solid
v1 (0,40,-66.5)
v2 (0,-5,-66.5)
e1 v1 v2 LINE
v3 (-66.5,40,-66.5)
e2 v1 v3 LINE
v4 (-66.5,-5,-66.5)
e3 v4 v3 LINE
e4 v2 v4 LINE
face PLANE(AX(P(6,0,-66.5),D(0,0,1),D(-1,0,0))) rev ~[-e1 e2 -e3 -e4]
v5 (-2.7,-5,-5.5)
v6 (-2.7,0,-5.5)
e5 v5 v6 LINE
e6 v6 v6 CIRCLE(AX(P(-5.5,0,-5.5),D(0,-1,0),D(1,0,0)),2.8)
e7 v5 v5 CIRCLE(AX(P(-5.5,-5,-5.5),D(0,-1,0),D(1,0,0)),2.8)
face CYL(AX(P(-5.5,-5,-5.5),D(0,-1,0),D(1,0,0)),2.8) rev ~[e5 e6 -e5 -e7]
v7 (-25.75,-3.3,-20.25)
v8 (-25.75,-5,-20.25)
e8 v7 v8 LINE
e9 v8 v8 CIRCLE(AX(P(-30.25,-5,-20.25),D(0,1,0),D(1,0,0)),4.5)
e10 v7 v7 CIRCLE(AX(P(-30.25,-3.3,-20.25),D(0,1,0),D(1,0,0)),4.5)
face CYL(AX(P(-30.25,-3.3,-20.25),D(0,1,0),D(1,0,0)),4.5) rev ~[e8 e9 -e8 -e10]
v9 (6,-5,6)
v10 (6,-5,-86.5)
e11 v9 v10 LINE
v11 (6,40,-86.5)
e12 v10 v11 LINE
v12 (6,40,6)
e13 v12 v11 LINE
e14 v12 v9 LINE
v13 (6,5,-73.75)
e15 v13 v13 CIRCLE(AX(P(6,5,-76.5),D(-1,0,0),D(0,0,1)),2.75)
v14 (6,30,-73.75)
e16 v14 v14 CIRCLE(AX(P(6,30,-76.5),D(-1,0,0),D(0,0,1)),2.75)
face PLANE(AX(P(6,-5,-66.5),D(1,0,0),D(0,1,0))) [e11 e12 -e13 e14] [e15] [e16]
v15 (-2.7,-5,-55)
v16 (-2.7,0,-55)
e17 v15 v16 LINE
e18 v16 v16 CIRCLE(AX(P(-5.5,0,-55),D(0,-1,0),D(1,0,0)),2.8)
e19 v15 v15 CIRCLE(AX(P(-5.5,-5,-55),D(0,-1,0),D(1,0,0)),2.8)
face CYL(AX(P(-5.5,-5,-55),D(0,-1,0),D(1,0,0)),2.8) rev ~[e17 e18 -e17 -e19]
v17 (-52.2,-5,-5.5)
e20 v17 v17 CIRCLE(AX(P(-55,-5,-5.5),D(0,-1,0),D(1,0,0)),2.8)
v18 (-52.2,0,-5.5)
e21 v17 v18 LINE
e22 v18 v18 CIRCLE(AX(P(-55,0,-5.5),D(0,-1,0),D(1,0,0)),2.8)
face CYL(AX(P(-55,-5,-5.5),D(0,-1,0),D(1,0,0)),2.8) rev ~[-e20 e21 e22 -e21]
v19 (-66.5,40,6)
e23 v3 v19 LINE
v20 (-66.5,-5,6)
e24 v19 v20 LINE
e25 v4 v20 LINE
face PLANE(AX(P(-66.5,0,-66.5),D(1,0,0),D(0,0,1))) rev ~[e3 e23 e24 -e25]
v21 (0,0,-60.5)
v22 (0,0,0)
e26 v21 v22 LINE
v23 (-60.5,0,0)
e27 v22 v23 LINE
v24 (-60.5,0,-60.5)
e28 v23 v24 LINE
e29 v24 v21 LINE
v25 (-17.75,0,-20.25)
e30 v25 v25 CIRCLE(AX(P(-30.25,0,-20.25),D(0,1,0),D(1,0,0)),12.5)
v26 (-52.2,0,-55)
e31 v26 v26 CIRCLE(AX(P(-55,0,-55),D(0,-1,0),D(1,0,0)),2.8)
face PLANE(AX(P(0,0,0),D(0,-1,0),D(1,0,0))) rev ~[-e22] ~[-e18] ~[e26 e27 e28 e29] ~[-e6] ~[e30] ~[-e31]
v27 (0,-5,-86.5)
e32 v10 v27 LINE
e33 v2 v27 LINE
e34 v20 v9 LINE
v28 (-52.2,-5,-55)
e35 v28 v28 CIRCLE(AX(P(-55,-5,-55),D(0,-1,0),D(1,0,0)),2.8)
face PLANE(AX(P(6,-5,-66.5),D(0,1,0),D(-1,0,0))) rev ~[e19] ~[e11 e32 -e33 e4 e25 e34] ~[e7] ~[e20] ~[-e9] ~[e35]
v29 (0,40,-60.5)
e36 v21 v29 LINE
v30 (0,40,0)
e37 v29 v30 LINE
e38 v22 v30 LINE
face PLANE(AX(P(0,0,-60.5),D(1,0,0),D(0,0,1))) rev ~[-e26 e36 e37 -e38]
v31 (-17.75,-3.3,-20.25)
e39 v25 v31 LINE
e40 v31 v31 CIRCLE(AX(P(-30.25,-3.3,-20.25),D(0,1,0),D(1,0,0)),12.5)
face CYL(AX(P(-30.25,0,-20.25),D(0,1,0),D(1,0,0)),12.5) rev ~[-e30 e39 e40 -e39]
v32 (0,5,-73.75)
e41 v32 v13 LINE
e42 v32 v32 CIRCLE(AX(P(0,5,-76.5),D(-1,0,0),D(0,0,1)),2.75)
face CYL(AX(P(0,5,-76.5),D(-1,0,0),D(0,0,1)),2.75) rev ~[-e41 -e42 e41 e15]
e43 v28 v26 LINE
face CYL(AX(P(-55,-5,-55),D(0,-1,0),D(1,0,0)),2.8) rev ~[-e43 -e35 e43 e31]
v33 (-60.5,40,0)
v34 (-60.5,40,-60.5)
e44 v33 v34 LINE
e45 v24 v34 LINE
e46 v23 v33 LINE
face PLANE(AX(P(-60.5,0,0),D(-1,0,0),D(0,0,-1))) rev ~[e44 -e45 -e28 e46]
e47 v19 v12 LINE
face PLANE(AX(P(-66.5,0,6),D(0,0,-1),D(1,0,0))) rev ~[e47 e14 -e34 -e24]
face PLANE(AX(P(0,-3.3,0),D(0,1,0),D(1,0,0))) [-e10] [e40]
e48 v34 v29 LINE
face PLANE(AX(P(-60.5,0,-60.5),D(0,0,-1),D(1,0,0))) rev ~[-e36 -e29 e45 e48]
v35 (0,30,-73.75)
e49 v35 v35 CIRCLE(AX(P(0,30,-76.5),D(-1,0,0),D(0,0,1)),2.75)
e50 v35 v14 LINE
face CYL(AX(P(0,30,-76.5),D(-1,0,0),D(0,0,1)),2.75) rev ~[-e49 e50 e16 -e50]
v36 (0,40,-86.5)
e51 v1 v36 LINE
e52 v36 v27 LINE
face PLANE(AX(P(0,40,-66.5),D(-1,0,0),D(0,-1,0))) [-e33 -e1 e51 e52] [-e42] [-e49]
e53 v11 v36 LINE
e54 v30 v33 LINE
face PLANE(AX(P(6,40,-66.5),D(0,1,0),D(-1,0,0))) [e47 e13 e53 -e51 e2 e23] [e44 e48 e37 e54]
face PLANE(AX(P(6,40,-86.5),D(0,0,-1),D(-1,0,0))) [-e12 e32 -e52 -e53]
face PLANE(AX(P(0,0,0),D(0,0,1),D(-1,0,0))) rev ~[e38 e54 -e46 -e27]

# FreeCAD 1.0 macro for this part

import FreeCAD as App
import Part
import Sketcher

V = App.Vector
Q = App.Units.Quantity

doc = App.newDocument("Part")
body = doc.addObject("PartDesign::Body", "Body")

# Sketch on XZ plane
sketch1 = doc.addObject("Sketcher::SketchObject", "Sketch")
body.addObject(sketch1)
sketch1.AttachmentSupport = (doc.XZ_Plane, [""])
sketch1.MapMode = "FlatFace"
sketch1.addGeometry(Part.LineSegment(V(6, 6, 0), V(6, -66, 0)), False)
sketch1.addGeometry(Part.LineSegment(V(6, -66, 0), V(-66, -66, 0)), False)
sketch1.addGeometry(Part.LineSegment(V(-66, -66, 0), V(-66, 6, 0)), False)
sketch1.addGeometry(Part.LineSegment(V(-66, 6, 0), V(6, 6, 0)), False)
sketch1.addGeometry(Part.LineSegment(V(0, -60, 0), V(0, 0, 0)), False)
sketch1.addGeometry(Part.LineSegment(V(0, 0, 0), V(-60, 0, 0)), False)
sketch1.addGeometry(Part.LineSegment(V(-60, 0, 0), V(-60, -60, 0)), False)
sketch1.addGeometry(Part.LineSegment(V(-60, -60, 0), V(0, -60, 0)), False)
sketch1.addConstraint(Sketcher.Constraint("Coincident", 0, 2, 1, 1))
sketch1.addConstraint(Sketcher.Constraint("Coincident", 1, 2, 2, 1))
sketch1.addConstraint(Sketcher.Constraint("Coincident", 2, 2, 3, 1))
sketch1.addConstraint(Sketcher.Constraint("Coincident", 3, 2, 0, 1))
sketch1.addConstraint(Sketcher.Constraint("Coincident", 4, 2, 5, 1))
sketch1.addConstraint(Sketcher.Constraint("Coincident", 5, 2, 6, 1))
sketch1.addConstraint(Sketcher.Constraint("Coincident", 6, 2, 7, 1))
sketch1.addConstraint(Sketcher.Constraint("Coincident", 7, 2, 4, 1))
sketch1.addConstraint(Sketcher.Constraint("Vertical", 0))
sketch1.addConstraint(Sketcher.Constraint("Horizontal", 1))
sketch1.addConstraint(Sketcher.Constraint("Vertical", 2))
sketch1.addConstraint(Sketcher.Constraint("Horizontal", 3))
sketch1.addConstraint(Sketcher.Constraint("Vertical", 4))
sketch1.addConstraint(Sketcher.Constraint("Horizontal", 5))
sketch1.addConstraint(Sketcher.Constraint("Vertical", 6))
sketch1.addConstraint(Sketcher.Constraint("Horizontal", 7))
sketch1.addConstraint(Sketcher.Constraint("Coincident", 4, 2, -1, 1))
sketch1.addConstraint(Sketcher.Constraint("Equal", 3, 0))
sketch1.addConstraint(Sketcher.Constraint("Equal", 7, 4))
sketch1.addConstraint(Sketcher.Constraint("DistanceX", 5, 2, 5, 1, Q("60.5 mm")))
sketch1.addConstraint(Sketcher.Constraint("DistanceX", -1, 1, 0, 2, Q("6 mm")))
sketch1.addConstraint(Sketcher.Constraint("DistanceY", -1, 1, 2, 2, Q("6 mm")))
sketch1.addConstraint(Sketcher.Constraint("DistanceX", 2, 2, 5, 2, Q("6 mm")))
pad1 = doc.addObject("PartDesign::Pad", "Pad")
body.addObject(pad1)
pad1.Profile = sketch1
pad1.Length = 40
pad1.Reversed = True

# Sketch on XZ plane
sketch2 = doc.addObject("Sketcher::SketchObject", "Sketch001")
body.addObject(sketch2)
sketch2.AttachmentSupport = (doc.XZ_Plane, [""])
sketch2.MapMode = "FlatFace"
sketch2.addGeometry(Part.LineSegment(V(-66, 6, 0), V(-66, -66, 0)), False)
sketch2.addGeometry(Part.LineSegment(V(-66, -66, 0), V(6, -66, 0)), False)
sketch2.addGeometry(Part.LineSegment(V(6, -66, 0), V(6, 6, 0)), False)
sketch2.addGeometry(Part.LineSegment(V(6, 6, 0), V(-66, 6, 0)), False)
sketch2.addConstraint(Sketcher.Constraint("Coincident", 0, 2, 1, 1))
sketch2.addConstraint(Sketcher.Constraint("Coincident", 1, 2, 2, 1))
sketch2.addConstraint(Sketcher.Constraint("Coincident", 2, 2, 3, 1))
sketch2.addConstraint(Sketcher.Constraint("Coincident", 3, 2, 0, 1))
sketch2.addConstraint(Sketcher.Constraint("Vertical", 0))
sketch2.addConstraint(Sketcher.Constraint("Horizontal", 1))
sketch2.addConstraint(Sketcher.Constraint("Vertical", 2))
sketch2.addConstraint(Sketcher.Constraint("Horizontal", 3))
sketch2.addConstraint(Sketcher.Constraint("Equal", 3, 0))
sketch2.addConstraint(Sketcher.Constraint("DistanceX", 1, 1, 1, 2, Q("72.5 mm")))
sketch2.addConstraint(Sketcher.Constraint("DistanceX", -1, 1, 1, 2, Q("6 mm")))
sketch2.addConstraint(Sketcher.Constraint("DistanceY", -1, 1, 2, 2, Q("6 mm")))
pad2 = doc.addObject("PartDesign::Pad", "Pad001")
body.addObject(pad2)
pad2.Profile = sketch2
pad2.Length = 5

# Sketch on XZ plane
sketch3 = doc.addObject("Sketcher::SketchObject", "Sketch002")
body.addObject(sketch3)
sketch3.AttachmentSupport = (doc.XZ_Plane, [""])
sketch3.MapMode = "FlatFace"
sketch3.AttachmentOffset = App.Placement(V(0, 0, 5), App.Rotation())
sketch3.addGeometry(Part.Circle(V(-55, -5.5, 0), V(0, 0, 1), 2.8), False)
sketch3.addGeometry(Part.Circle(V(-5.5, -5.5, 0), V(0, 0, 1), 2.8), False)
sketch3.addGeometry(Part.Circle(V(-55, -55, 0), V(0, 0, 1), 2.8), False)
sketch3.addGeometry(Part.Circle(V(-5.5, -55, 0), V(0, 0, 1), 2.8), False)
sketch3.addConstraint(Sketcher.Constraint("Equal", 0, 1))
sketch3.addConstraint(Sketcher.Constraint("Equal", 1, 2))
sketch3.addConstraint(Sketcher.Constraint("Equal", 2, 3))
sketch3.addConstraint(Sketcher.Constraint("Horizontal", 0, 3, 1, 3))
sketch3.addConstraint(Sketcher.Constraint("Horizontal", 2, 3, 3, 3))
sketch3.addConstraint(Sketcher.Constraint("Vertical", 0, 3, 2, 3))
sketch3.addConstraint(Sketcher.Constraint("Vertical", 1, 3, 3, 3))
sketch3.addConstraint(Sketcher.Constraint("Diameter", 0, Q("5.6 mm")))
sketch3.addConstraint(Sketcher.Constraint("DistanceX", 0, 3, 1, 3, Q("49.5 mm")))
sketch3.addConstraint(Sketcher.Constraint("DistanceY", 2, 3, 0, 3, Q("49.5 mm")))
sketch3.addConstraint(Sketcher.Constraint("DistanceX", 0, 3, -1, 1, Q("55 mm")))
sketch3.addConstraint(Sketcher.Constraint("DistanceY", 2, 3, -1, 1, Q("55 mm")))
pocket1 = doc.addObject("PartDesign::Pocket", "Pocket")
body.addObject(pocket1)
pocket1.Profile = sketch3
pocket1.Length = 5

# Sketch on XZ plane
sketch4 = doc.addObject("Sketcher::SketchObject", "Sketch003")
body.addObject(sketch4)
sketch4.AttachmentSupport = (doc.XZ_Plane, [""])
sketch4.MapMode = "FlatFace"
sketch4.addGeometry(Part.Circle(V(-30, -20, 0), V(0, 0, 1), 12), False)
sketch4.addConstraint(Sketcher.Constraint("Diameter", 0, Q("25 mm")))
sketch4.addConstraint(Sketcher.Constraint("DistanceX", 0, 3, -1, 1, Q("30.25 mm")))
sketch4.addConstraint(Sketcher.Constraint("DistanceY", 0, 3, -1, 1, Q("20.25 mm")))
pocket2 = doc.addObject("PartDesign::Pocket", "Pocket001")
body.addObject(pocket2)
pocket2.Profile = sketch4
pocket2.Length = 3.3
pocket2.Reversed = True

# Sketch on XZ plane
sketch5 = doc.addObject("Sketcher::SketchObject", "Sketch004")
body.addObject(sketch5)
sketch5.AttachmentSupport = (doc.XZ_Plane, [""])
sketch5.MapMode = "FlatFace"
sketch5.AttachmentOffset = App.Placement(V(0, 0, 3.3), App.Rotation())
sketch5.addGeometry(Part.Circle(V(-30.2, -20.2, 0), V(0, 0, 1), 4.5), False)
sketch5.addConstraint(Sketcher.Constraint("Diameter", 0, Q("9 mm")))
sketch5.addConstraint(Sketcher.Constraint("DistanceX", 0, 3, -1, 1, Q("30.25 mm")))
sketch5.addConstraint(Sketcher.Constraint("DistanceY", 0, 3, -1, 1, Q("20.25 mm")))
pocket3 = doc.addObject("PartDesign::Pocket", "Pocket002")
body.addObject(pocket3)
pocket3.Profile = sketch5
pocket3.Length = 2
pocket3.Reversed = True

# Sketch on XY plane
sketch6 = doc.addObject("Sketcher::SketchObject", "Sketch005")
body.addObject(sketch6)
sketch6.AttachmentSupport = (doc.XY_Plane, [""])
sketch6.MapMode = "FlatFace"
sketch6.AttachmentOffset = App.Placement(V(0, 0, -66.5), App.Rotation())
sketch6.addGeometry(Part.LineSegment(V(0, 40, 0), V(6, 40, 0)), False)
sketch6.addGeometry(Part.LineSegment(V(6, 40, 0), V(6, -5, 0)), False)
sketch6.addGeometry(Part.LineSegment(V(6, -5, 0), V(0, -5, 0)), False)
sketch6.addGeometry(Part.LineSegment(V(0, -5, 0), V(0, 40, 0)), False)
sketch6.addConstraint(Sketcher.Constraint("Coincident", 0, 2, 1, 1))
sketch6.addConstraint(Sketcher.Constraint("Coincident", 1, 2, 2, 1))
sketch6.addConstraint(Sketcher.Constraint("Coincident", 2, 2, 3, 1))
sketch6.addConstraint(Sketcher.Constraint("Coincident", 3, 2, 0, 1))
sketch6.addConstraint(Sketcher.Constraint("Horizontal", 0))
sketch6.addConstraint(Sketcher.Constraint("Vertical", 1))
sketch6.addConstraint(Sketcher.Constraint("Horizontal", 2))
sketch6.addConstraint(Sketcher.Constraint("Vertical", 3))
sketch6.addConstraint(Sketcher.Constraint("PointOnObject", 2, 2, -2))
sketch6.addConstraint(Sketcher.Constraint("DistanceX", 0, 1, 0, 2, Q("6 mm")))
sketch6.addConstraint(Sketcher.Constraint("DistanceY", 1, 2, 1, 1, Q("45 mm")))
sketch6.addConstraint(Sketcher.Constraint("DistanceY", -1, 1, 0, 2, Q("40 mm")))
pad3 = doc.addObject("PartDesign::Pad", "Pad002")
body.addObject(pad3)
pad3.Profile = sketch6
pad3.Length = 20
pad3.Reversed = True

# Sketch on YZ plane
sketch7 = doc.addObject("Sketcher::SketchObject", "Sketch006")
body.addObject(sketch7)
sketch7.AttachmentSupport = (doc.YZ_Plane, [""])
sketch7.MapMode = "FlatFace"
sketch7.addGeometry(Part.Circle(V(5, -76.5, 0), V(0, 0, 1), 2.8), False)
sketch7.addGeometry(Part.Circle(V(30, -76.5, 0), V(0, 0, 1), 2.8), False)
sketch7.addConstraint(Sketcher.Constraint("Equal", 0, 1))
sketch7.addConstraint(Sketcher.Constraint("Horizontal", 0, 3, 1, 3))
sketch7.addConstraint(Sketcher.Constraint("Diameter", 0, Q("5.5 mm")))
sketch7.addConstraint(Sketcher.Constraint("DistanceX", -1, 1, 0, 3, Q("5 mm")))
sketch7.addConstraint(Sketcher.Constraint("DistanceX", -1, 1, 1, 3, Q("30 mm")))
sketch7.addConstraint(Sketcher.Constraint("DistanceY", 0, 3, -1, 1, Q("76.5 mm")))
pocket4 = doc.addObject("PartDesign::Pocket", "Pocket003")
body.addObject(pocket4)
pocket4.Profile = sketch7
pocket4.Length = 6
pocket4.Reversed = True

doc.recompute()
